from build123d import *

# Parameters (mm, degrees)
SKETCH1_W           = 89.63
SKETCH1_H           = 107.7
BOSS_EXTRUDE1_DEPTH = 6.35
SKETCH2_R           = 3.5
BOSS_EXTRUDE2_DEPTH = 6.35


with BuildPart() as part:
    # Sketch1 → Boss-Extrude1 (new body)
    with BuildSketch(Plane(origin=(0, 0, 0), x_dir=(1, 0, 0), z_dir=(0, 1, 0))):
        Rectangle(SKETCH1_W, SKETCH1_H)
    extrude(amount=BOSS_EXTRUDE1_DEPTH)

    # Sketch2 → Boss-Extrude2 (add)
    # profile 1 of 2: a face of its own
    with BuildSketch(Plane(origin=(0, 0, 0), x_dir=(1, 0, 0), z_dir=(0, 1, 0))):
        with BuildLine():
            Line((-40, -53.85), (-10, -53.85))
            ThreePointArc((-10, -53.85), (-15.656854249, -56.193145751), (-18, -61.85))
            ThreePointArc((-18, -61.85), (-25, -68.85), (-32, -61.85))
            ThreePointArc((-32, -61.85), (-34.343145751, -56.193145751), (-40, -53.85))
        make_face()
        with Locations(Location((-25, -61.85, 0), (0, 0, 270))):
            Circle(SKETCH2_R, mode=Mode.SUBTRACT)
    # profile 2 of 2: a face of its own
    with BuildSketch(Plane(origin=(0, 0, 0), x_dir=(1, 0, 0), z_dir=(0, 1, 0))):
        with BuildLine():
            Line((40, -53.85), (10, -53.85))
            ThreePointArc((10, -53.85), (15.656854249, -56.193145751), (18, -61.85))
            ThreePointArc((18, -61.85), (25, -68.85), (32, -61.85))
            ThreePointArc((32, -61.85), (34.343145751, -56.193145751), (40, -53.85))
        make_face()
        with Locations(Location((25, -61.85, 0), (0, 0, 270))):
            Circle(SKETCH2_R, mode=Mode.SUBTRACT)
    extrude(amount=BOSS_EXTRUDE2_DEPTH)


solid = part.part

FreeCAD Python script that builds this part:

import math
import FreeCAD as App
import Part
import Sketcher

V = App.Vector

doc = App.newDocument("Part")
body = doc.addObject("PartDesign::Body", "Body")

sketch1 = doc.addObject("Sketcher::SketchObject", "Sketch")
body.addObject(sketch1)
sketch1.AttachmentSupport = (doc.XZ_Plane, [""])
sketch1.MapMode = "FlatFace"
sketch1.addGeometry(Part.LineSegment(V(-45, -54, 0), V(-45, 54, 0)), False)
sketch1.addGeometry(Part.LineSegment(V(-45, 54, 0), V(45, 54, 0)), False)
sketch1.addGeometry(Part.LineSegment(V(45, 54, 0), V(45, -54, 0)), False)
sketch1.addGeometry(Part.LineSegment(V(45, -54, 0), V(-45, -54, 0)), False)
sketch1.addConstraint(Sketcher.Constraint("Coincident", 0, 2, 1, 1))
sketch1.addConstraint(Sketcher.Constraint("Coincident", 1, 2, 2, 1))
sketch1.addConstraint(Sketcher.Constraint("Coincident", 2, 2, 3, 1))
sketch1.addConstraint(Sketcher.Constraint("Coincident", 3, 2, 0, 1))
sketch1.addConstraint(Sketcher.Constraint("Vertical", 0))
sketch1.addConstraint(Sketcher.Constraint("Horizontal", 1))
sketch1.addConstraint(Sketcher.Constraint("Vertical", 2))
sketch1.addConstraint(Sketcher.Constraint("Horizontal", 3))
sketch1.addConstraint(Sketcher.Constraint("Symmetric", 0, 2, 2, 2, -1, 1))
sketch1.addConstraint(Sketcher.Constraint("DistanceY", 0, 1, 0, 2, 107.7))
sketch1.addConstraint(Sketcher.Constraint("DistanceX", 1, 1, 1, 2, 89.63))
pad1 = doc.addObject("PartDesign::Pad", "Pad")
body.addObject(pad1)
pad1.Profile = sketch1
pad1.Length = 6.35
pad1.Reversed = True

sketch2 = doc.addObject("Sketcher::SketchObject", "Sketch001")
body.addObject(sketch2)
sketch2.AttachmentSupport = (doc.XZ_Plane, [""])
sketch2.MapMode = "FlatFace"
sketch2.addGeometry(Part.LineSegment(V(-10, 53.9, 0), V(-40, 53.9, 0)), False)
sketch2.addGeometry(Part.ArcOfCircle(Part.Circle(V(-40, 61.9, 0), V(0, 0, 1), 8), math.radians(-90), math.radians(0)), False)
sketch2.addGeometry(Part.ArcOfCircle(Part.Circle(V(-25, 61.9, 0), V(0, 0, 1), 7), math.radians(0), math.radians(180)), False)
sketch2.addGeometry(Part.ArcOfCircle(Part.Circle(V(-10, 61.9, 0), V(0, 0, 1), 8), math.radians(-180), math.radians(-90)), False)
sketch2.addGeometry(Part.Circle(V(-25, 61.9, 0), V(0, 0, 1), 3.5), False)
sketch2.addGeometry(Part.LineSegment(V(40, 53.9, 0), V(10, 53.9, 0)), False)
sketch2.addGeometry(Part.ArcOfCircle(Part.Circle(V(10, 61.9, 0), V(0, 0, 1), 8), math.radians(-90), math.radians(0)), False)
sketch2.addGeometry(Part.ArcOfCircle(Part.Circle(V(25, 61.9, 0), V(0, 0, 1), 7), math.radians(0), math.radians(180)), False)
sketch2.addGeometry(Part.ArcOfCircle(Part.Circle(V(40, 61.9, 0), V(0, 0, 1), 8), math.radians(-180), math.radians(-90)), False)
sketch2.addGeometry(Part.Circle(V(25, 61.9, 0), V(0, 0, 1), 3.5), False)
sketch2.addConstraint(Sketcher.Constraint("Tangent", 0, 2, 1, 1))
sketch2.addConstraint(Sketcher.Constraint("Tangent", 1, 2, 2, 2))
sketch2.addConstraint(Sketcher.Constraint("Tangent", 2, 1, 3, 1))
sketch2.addConstraint(Sketcher.Constraint("Tangent", 3, 2, 0, 1))
sketch2.addConstraint(Sketcher.Constraint("Tangent", 5, 2, 6, 1))
sketch2.addConstraint(Sketcher.Constraint("Tangent", 6, 2, 7, 2))
sketch2.addConstraint(Sketcher.Constraint("Tangent", 7, 1, 8, 1))
sketch2.addConstraint(Sketcher.Constraint("Tangent", 8, 2, 5, 1))
sketch2.addConstraint(Sketcher.Constraint("Horizontal", 0))
sketch2.addConstraint(Sketcher.Constraint("Horizontal", 5))
sketch2.addConstraint(Sketcher.Constraint("Coincident", 4, 3, 2, 3))
sketch2.addConstraint(Sketcher.Constraint("Coincident", 9, 3, 7, 3))
sketch2.addConstraint(Sketcher.Constraint("Equal", 1, 3))
sketch2.addConstraint(Sketcher.Constraint("Equal", 3, 6))
sketch2.addConstraint(Sketcher.Constraint("Equal", 2, 7))
sketch2.addConstraint(Sketcher.Constraint("Equal", 6, 8))
sketch2.addConstraint(Sketcher.Constraint("Equal", 4, 9))
sketch2.addConstraint(Sketcher.Constraint("Symmetric", 3, 3, 6, 3, -2))
sketch2.addConstraint(Sketcher.Constraint("Horizontal", 1, 3, 2, 3))
sketch2.addConstraint(Sketcher.Constraint("Horizontal", 6, 3, 7, 3))
sketch2.addConstraint(Sketcher.Constraint("Diameter", 4, 7.0))
sketch2.addConstraint(Sketcher.Constraint("Radius", 1, 8.0))
sketch2.addConstraint(Sketcher.Constraint("Radius", 2, 7.0))
sketch2.addConstraint(Sketcher.Constraint("DistanceX", 1, 3, -1, 1, 40.0))
sketch2.addConstraint(Sketcher.Constraint("DistanceY", -1, 1, 1, 3, 61.85))
pad2 = doc.addObject("PartDesign::Pad", "Pad001")
body.addObject(pad2)
pad2.Profile = sketch2
pad2.Length = 6.35
pad2.Reversed = True

doc.recompute()
